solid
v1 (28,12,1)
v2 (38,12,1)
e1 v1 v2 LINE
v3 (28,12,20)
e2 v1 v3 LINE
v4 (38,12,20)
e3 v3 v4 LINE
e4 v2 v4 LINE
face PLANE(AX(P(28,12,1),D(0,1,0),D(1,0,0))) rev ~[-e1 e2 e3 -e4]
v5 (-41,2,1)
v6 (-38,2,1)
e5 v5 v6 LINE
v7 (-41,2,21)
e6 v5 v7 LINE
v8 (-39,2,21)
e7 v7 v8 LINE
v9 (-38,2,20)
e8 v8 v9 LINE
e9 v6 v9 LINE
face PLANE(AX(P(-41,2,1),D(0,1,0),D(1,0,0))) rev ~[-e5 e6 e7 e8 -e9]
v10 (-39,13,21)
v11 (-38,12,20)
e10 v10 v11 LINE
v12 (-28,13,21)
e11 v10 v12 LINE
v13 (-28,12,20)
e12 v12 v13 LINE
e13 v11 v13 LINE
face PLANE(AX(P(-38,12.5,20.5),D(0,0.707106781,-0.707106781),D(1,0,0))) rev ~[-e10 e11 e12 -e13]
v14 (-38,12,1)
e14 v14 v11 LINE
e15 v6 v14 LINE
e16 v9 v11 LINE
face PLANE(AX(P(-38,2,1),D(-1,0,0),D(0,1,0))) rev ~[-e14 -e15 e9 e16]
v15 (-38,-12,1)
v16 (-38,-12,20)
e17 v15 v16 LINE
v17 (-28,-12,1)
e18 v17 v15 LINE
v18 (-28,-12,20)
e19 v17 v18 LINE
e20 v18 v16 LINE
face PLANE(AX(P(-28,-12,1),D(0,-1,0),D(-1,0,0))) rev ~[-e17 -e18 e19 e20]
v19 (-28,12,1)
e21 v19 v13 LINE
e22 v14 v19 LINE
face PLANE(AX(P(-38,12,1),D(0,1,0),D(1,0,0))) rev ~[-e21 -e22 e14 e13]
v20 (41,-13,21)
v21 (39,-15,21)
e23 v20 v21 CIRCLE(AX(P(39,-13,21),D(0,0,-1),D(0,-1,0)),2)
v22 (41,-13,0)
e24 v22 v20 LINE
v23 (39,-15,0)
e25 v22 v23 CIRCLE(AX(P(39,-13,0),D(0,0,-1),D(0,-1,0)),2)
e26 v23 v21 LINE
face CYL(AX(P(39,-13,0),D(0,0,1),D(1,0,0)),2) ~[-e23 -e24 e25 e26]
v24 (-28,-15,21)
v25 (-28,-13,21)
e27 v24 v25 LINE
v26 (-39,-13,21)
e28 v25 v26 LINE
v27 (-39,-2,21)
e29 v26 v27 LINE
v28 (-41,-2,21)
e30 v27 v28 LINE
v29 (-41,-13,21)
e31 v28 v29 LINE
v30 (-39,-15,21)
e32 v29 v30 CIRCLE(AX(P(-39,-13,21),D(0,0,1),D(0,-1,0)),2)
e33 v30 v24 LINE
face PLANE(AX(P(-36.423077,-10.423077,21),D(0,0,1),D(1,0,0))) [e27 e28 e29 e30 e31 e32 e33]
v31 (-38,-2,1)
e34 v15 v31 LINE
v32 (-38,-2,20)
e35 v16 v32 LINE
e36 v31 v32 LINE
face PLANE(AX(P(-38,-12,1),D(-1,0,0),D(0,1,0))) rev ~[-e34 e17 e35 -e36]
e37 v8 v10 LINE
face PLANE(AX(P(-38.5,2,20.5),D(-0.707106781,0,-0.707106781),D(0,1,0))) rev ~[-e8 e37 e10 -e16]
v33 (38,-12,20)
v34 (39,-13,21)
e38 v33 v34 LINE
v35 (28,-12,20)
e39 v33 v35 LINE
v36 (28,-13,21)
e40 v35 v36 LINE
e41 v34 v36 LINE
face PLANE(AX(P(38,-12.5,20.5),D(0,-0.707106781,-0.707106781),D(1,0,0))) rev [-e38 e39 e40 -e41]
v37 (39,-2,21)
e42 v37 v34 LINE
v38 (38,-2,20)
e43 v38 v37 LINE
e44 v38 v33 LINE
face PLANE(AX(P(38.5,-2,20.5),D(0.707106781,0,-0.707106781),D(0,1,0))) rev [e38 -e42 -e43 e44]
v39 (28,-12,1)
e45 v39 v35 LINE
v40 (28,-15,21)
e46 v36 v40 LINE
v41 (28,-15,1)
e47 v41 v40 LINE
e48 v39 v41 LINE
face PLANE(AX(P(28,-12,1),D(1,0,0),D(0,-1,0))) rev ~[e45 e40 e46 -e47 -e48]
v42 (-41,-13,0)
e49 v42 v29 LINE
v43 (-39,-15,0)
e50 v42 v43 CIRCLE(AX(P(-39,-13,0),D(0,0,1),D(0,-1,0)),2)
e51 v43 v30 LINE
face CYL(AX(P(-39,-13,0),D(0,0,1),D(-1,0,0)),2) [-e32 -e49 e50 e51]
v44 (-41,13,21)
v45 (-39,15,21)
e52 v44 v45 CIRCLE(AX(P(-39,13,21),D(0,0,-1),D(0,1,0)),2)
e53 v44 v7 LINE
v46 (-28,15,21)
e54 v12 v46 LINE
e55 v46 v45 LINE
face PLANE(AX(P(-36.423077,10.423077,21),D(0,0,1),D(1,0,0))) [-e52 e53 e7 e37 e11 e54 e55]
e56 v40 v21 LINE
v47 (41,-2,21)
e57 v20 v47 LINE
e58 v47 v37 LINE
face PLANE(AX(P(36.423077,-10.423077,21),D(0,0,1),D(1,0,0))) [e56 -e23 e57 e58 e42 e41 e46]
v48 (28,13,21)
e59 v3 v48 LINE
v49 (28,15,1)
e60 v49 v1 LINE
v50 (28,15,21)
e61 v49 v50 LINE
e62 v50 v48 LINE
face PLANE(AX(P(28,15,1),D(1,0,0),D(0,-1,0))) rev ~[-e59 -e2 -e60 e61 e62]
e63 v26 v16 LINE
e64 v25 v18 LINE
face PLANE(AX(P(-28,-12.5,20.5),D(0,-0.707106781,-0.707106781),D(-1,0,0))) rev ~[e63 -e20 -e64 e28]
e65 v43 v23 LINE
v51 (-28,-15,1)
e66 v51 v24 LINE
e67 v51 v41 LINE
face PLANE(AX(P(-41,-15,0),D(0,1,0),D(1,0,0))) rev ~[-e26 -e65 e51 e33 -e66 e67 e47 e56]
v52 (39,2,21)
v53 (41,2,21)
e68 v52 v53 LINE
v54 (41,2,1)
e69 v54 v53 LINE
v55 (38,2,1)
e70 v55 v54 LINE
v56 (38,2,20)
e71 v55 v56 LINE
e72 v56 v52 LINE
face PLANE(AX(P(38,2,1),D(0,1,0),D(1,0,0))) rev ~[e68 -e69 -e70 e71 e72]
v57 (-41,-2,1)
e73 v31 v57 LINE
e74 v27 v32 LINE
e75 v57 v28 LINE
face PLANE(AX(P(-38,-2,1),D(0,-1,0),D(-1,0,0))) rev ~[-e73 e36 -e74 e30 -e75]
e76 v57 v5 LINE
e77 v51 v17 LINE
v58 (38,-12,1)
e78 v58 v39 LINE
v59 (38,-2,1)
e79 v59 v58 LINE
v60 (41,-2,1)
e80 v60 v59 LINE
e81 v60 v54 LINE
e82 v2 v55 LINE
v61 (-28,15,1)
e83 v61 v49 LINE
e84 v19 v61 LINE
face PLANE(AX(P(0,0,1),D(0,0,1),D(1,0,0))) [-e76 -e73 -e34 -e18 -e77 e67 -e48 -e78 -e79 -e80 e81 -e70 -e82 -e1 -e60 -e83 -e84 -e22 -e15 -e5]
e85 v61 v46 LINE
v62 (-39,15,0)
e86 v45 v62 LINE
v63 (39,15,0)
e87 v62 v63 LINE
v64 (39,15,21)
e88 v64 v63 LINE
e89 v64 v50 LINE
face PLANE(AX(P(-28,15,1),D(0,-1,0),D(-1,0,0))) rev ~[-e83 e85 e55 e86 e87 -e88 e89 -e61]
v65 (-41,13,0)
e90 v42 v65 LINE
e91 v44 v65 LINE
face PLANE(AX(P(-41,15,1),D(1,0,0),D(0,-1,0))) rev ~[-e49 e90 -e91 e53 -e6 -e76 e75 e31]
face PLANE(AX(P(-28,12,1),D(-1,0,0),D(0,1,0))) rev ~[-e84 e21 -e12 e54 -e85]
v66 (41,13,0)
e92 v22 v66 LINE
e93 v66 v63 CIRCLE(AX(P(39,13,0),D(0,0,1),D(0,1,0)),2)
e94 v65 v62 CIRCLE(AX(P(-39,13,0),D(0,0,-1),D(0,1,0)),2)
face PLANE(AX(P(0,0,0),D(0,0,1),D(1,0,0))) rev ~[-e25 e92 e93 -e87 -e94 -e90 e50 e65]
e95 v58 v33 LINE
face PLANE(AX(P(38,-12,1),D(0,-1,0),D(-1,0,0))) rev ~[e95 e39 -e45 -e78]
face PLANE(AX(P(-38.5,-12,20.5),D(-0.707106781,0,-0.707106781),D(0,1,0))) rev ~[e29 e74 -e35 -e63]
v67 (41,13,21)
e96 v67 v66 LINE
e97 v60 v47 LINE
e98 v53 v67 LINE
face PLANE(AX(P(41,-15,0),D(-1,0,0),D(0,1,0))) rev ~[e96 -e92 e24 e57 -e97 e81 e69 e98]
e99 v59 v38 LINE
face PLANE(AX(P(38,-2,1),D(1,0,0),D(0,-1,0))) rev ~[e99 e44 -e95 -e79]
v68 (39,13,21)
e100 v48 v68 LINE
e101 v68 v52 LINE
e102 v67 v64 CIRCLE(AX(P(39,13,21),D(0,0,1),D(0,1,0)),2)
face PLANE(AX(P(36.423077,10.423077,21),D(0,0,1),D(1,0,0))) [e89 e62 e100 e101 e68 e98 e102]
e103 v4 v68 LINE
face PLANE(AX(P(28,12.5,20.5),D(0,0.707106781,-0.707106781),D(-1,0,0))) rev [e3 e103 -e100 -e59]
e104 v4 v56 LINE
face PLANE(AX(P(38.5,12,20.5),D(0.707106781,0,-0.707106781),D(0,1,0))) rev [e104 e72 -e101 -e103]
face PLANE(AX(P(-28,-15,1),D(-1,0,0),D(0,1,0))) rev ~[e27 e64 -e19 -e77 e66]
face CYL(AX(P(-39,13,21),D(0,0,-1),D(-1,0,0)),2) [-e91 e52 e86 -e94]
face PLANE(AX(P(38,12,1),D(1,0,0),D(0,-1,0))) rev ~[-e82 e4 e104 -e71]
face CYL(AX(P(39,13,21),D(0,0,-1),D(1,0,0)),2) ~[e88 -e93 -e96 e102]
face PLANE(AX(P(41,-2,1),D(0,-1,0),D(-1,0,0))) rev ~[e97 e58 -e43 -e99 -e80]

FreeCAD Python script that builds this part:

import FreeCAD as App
import Part
import Sketcher

V = App.Vector
Q = App.Units.Quantity


def edges_at(feature, points):
    """Names of the edges that pass closest to the given points."""
    edges = feature.Shape.Edges
    near = lambda p: min(range(len(edges)), key=lambda i: edges[i].distToShape(Part.Vertex(*p))[0])
    return sorted({f"Edge{near(p) + 1}" for p in points})

doc = App.newDocument("Part")
body = doc.addObject("PartDesign::Body", "Body")

sketch1 = doc.addObject("Sketcher::SketchObject", "Sketch")
body.addObject(sketch1)
sketch1.AttachmentSupport = (doc.XY_Plane, [""])
sketch1.MapMode = "FlatFace"
sketch1.addGeometry([
    Part.LineSegment(V(-41, 15, 0), V(-41, -15, 0)),
    Part.LineSegment(V(-41, -15, 0), V(41, -15, 0)),
    Part.LineSegment(V(41, -15, 0), V(41, 15, 0)),
    Part.LineSegment(V(41, 15, 0), V(-41, 15, 0)),
], False)
sketch1.addConstraint([
    Sketcher.Constraint("Coincident", 0, 2, 1, 1),
    Sketcher.Constraint("Coincident", 1, 2, 2, 1),
    Sketcher.Constraint("Coincident", 2, 2, 3, 1),
    Sketcher.Constraint("Coincident", 3, 2, 0, 1),
    Sketcher.Constraint("Vertical", 0),
    Sketcher.Constraint("Horizontal", 1),
    Sketcher.Constraint("Vertical", 2),
    Sketcher.Constraint("Horizontal", 3),
    Sketcher.Constraint("Symmetric", 0, 2, 2, 2, -1, 1),
    Sketcher.Constraint("DistanceX", 1, 1, 1, 2, Q("82 mm")),
    Sketcher.Constraint("DistanceY", 0, 2, 0, 1, Q("30 mm")),
])
pad1 = doc.addObject("PartDesign::Pad", "Pad")
body.addObject(pad1)
pad1.Profile = sketch1
pad1.Length = 1

sketch2 = doc.addObject("Sketcher::SketchObject", "Sketch001")
body.addObject(sketch2)
sketch2.AttachmentSupport = (doc.XY_Plane, [""])
sketch2.MapMode = "FlatFace"
sketch2.AttachmentOffset = App.Placement(V(0, 0, 1), App.Rotation())
sketch2.addGeometry([
    Part.LineSegment(V(-41, 15, 0), V(-41, 2, 0)),
    Part.LineSegment(V(-41, 2, 0), V(-38, 2, 0)),
    Part.LineSegment(V(-38, 2, 0), V(-38, 12, 0)),
    Part.LineSegment(V(-38, 12, 0), V(-28, 12, 0)),
    Part.LineSegment(V(-28, 12, 0), V(-28, 15, 0)),
    Part.LineSegment(V(-28, 15, 0), V(-41, 15, 0)),
    Part.LineSegment(V(28, -12, 0), V(28, -15, 0)),
    Part.LineSegment(V(28, -15, 0), V(41, -15, 0)),
    Part.LineSegment(V(41, -15, 0), V(41, -2, 0)),
    Part.LineSegment(V(41, -2, 0), V(38, -2, 0)),
    Part.LineSegment(V(38, -2, 0), V(38, -12, 0)),
    Part.LineSegment(V(38, -12, 0), V(28, -12, 0)),
    Part.LineSegment(V(-41, -2, 0), V(-41, -15, 0)),
    Part.LineSegment(V(-41, -15, 0), V(-28, -15, 0)),
    Part.LineSegment(V(-28, -15, 0), V(-28, -12, 0)),
    Part.LineSegment(V(-28, -12, 0), V(-38, -12, 0)),
    Part.LineSegment(V(-38, -12, 0), V(-38, -2, 0)),
    Part.LineSegment(V(-38, -2, 0), V(-41, -2, 0)),
    Part.LineSegment(V(38, 2, 0), V(41, 2, 0)),
    Part.LineSegment(V(41, 2, 0), V(41, 15, 0)),
    Part.LineSegment(V(41, 15, 0), V(28, 15, 0)),
    Part.LineSegment(V(28, 15, 0), V(28, 12, 0)),
    Part.LineSegment(V(28, 12, 0), V(38, 12, 0)),
    Part.LineSegment(V(38, 12, 0), V(38, 2, 0)),
], False)
sketch2.addConstraint([
    Sketcher.Constraint("Coincident", 0, 2, 1, 1),
    Sketcher.Constraint("Coincident", 1, 2, 2, 1),
    Sketcher.Constraint("Coincident", 2, 2, 3, 1),
    Sketcher.Constraint("Coincident", 3, 2, 4, 1),
    Sketcher.Constraint("Coincident", 4, 2, 5, 1),
    Sketcher.Constraint("Coincident", 5, 2, 0, 1),
    Sketcher.Constraint("Coincident", 6, 2, 7, 1),
    Sketcher.Constraint("Coincident", 7, 2, 8, 1),
    Sketcher.Constraint("Coincident", 8, 2, 9, 1),
    Sketcher.Constraint("Coincident", 9, 2, 10, 1),
    Sketcher.Constraint("Coincident", 10, 2, 11, 1),
    Sketcher.Constraint("Coincident", 11, 2, 6, 1),
    Sketcher.Constraint("Coincident", 12, 2, 13, 1),
    Sketcher.Constraint("Coincident", 13, 2, 14, 1),
    Sketcher.Constraint("Coincident", 14, 2, 15, 1),
    Sketcher.Constraint("Coincident", 15, 2, 16, 1),
    Sketcher.Constraint("Coincident", 16, 2, 17, 1),
    Sketcher.Constraint("Coincident", 17, 2, 12, 1),
    Sketcher.Constraint("Coincident", 18, 2, 19, 1),
    Sketcher.Constraint("Coincident", 19, 2, 20, 1),
    Sketcher.Constraint("Coincident", 20, 2, 21, 1),
    Sketcher.Constraint("Coincident", 21, 2, 22, 1),
    Sketcher.Constraint("Coincident", 22, 2, 23, 1),
    Sketcher.Constraint("Coincident", 23, 2, 18, 1),
    Sketcher.Constraint("Vertical", 0),
    Sketcher.Constraint("Horizontal", 1),
    Sketcher.Constraint("Vertical", 2),
    Sketcher.Constraint("Horizontal", 3),
    Sketcher.Constraint("Vertical", 4),
    Sketcher.Constraint("Horizontal", 5),
    Sketcher.Constraint("Vertical", 6),
    Sketcher.Constraint("Horizontal", 7),
    Sketcher.Constraint("Vertical", 8),
    Sketcher.Constraint("Horizontal", 9),
    Sketcher.Constraint("Vertical", 10),
    Sketcher.Constraint("Horizontal", 11),
    Sketcher.Constraint("Vertical", 12),
    Sketcher.Constraint("Horizontal", 13),
    Sketcher.Constraint("Vertical", 14),
    Sketcher.Constraint("Horizontal", 15),
    Sketcher.Constraint("Vertical", 16),
    Sketcher.Constraint("Horizontal", 17),
    Sketcher.Constraint("Horizontal", 18),
    Sketcher.Constraint("Vertical", 19),
    Sketcher.Constraint("Horizontal", 20),
    Sketcher.Constraint("Vertical", 21),
    Sketcher.Constraint("Horizontal", 22),
    Sketcher.Constraint("Vertical", 23),
    Sketcher.Constraint("Symmetric", 4, 2, 6, 2, -1, 1),
    Sketcher.Constraint("Symmetric", 0, 2, 8, 2, -1, 1),
    Sketcher.Constraint("Symmetric", 2, 2, 10, 2, -1, 1),
    Sketcher.Constraint("Symmetric", 17, 2, 18, 2, -1, 1),
    Sketcher.Constraint("Symmetric", 13, 2, 20, 2, -1, 1),
    Sketcher.Constraint("Symmetric", 15, 2, 22, 2, -1, 1),
    Sketcher.Constraint("Symmetric", 7, 2, 12, 2, -2),
    Sketcher.Constraint("Symmetric", 11, 2, 14, 2, -2),
    Sketcher.Constraint("Symmetric", 9, 2, 16, 2, -2),
    Sketcher.Constraint("Equal", 20, 0),
    Sketcher.Constraint("Equal", 22, 2),
    Sketcher.Constraint("DistanceX", 1, 1, 1, 2, Q("3 mm")),
    Sketcher.Constraint("DistanceX", 3, 1, 3, 2, Q("10 mm")),
    Sketcher.Constraint("DistanceX", 0, 2, -1, 1, Q("41 mm")),
    Sketcher.Constraint("DistanceY", -1, 1, 0, 2, Q("2 mm")),
])
pad2 = doc.addObject("PartDesign::Pad", "Pad001")
body.addObject(pad2)
pad2.Profile = sketch2
pad2.Length = 20
doc.recompute()

fillet = doc.addObject("PartDesign::Fillet", "Fillet")
body.addObject(fillet)
fillet.Base = (pad2, edges_at(pad2, [(41, -15, 10.5), (41, 15, 10.5), (-41, 15, 10.5)]))
fillet.Radius = 2
doc.recompute()

fillet2 = doc.addObject("PartDesign::Fillet", "Fillet001")
body.addObject(fillet2)
fillet2.Base = (fillet, edges_at(fillet, [(-41, -15, 10.5)]))
fillet2.Radius = 2
doc.recompute()

chamfer = doc.addObject("PartDesign::Chamfer", "Chamfer")
body.addObject(chamfer)
chamfer.Base = (fillet2, edges_at(fillet2, [
    (-38, 7, 21),
    (-33, 12, 21),
    (-38, -7, 21),
    (-33, -12, 21),
    (33, -12, 21),
    (38, -7, 21),
    (38, 7, 21),
    (33, 12, 21),
]))
chamfer.Size = 1

doc.recompute()
